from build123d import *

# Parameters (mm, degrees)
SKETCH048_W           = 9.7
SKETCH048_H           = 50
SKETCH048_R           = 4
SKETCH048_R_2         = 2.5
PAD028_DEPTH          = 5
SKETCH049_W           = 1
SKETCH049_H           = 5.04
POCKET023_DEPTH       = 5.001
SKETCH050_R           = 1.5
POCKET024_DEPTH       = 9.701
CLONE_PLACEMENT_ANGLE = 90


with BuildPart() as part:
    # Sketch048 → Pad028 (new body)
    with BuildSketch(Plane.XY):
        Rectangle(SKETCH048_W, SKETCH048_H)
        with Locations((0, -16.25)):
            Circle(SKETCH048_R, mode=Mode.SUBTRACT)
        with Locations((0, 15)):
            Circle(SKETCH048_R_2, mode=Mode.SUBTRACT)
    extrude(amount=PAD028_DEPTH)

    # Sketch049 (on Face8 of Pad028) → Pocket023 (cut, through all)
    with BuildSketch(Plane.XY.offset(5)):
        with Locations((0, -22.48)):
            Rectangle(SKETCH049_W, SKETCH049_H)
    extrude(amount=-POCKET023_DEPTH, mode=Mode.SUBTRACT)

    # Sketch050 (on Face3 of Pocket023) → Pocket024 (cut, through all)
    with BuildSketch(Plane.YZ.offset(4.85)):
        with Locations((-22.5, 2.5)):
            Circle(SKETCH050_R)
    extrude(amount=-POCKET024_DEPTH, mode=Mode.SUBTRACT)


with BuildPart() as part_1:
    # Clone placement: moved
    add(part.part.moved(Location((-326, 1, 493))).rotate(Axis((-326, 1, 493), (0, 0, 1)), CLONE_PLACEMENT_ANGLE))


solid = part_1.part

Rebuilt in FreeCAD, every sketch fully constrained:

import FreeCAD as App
import Part
import Sketcher
Q = App.Units.Quantity

doc = App.newDocument("Part")
body = doc.addObject("PartDesign::Body", "Body")

sketch1 = body.newObject("Sketcher::SketchObject", "Sketch")
sketch1.AttachmentSupport = (doc.getObject("XY_Plane"), [""])
sketch1.MapMode = "FlatFace"
sketch1.addGeometry([
    Part.LineSegment(App.Vector(-4.8, 25, 0), App.Vector(-4.8, -25, 0)),
    Part.LineSegment(App.Vector(-4.8, -25, 0), App.Vector(4.8, -25, 0)),
    Part.LineSegment(App.Vector(4.8, -25, 0), App.Vector(4.8, 25, 0)),
    Part.LineSegment(App.Vector(4.8, 25, 0), App.Vector(-4.8, 25, 0)),
    Part.Circle(App.Vector(0, -16.2, 0), App.Vector(0, 0, 1), 4),
    Part.Circle(App.Vector(0, 15, 0), App.Vector(0, 0, 1), 2.5),
], False)
sketch1.addConstraint([
    Sketcher.Constraint("Coincident", 0, 2, 1, 1),
    Sketcher.Constraint("Coincident", 1, 2, 2, 1),
    Sketcher.Constraint("Coincident", 2, 2, 3, 1),
    Sketcher.Constraint("Coincident", 3, 2, 0, 1),
    Sketcher.Constraint("Vertical", 0),
    Sketcher.Constraint("Horizontal", 1),
    Sketcher.Constraint("Vertical", 2),
    Sketcher.Constraint("Horizontal", 3),
    Sketcher.Constraint("Symmetric", 0, 2, 2, 2, -1, 1),
    Sketcher.Constraint("PointOnObject", 4, 3, -2),
    Sketcher.Constraint("PointOnObject", 5, 3, -2),
    Sketcher.Constraint("Diameter", 4, Q("8 mm")),
    Sketcher.Constraint("Diameter", 5, Q("5 mm")),
    Sketcher.Constraint("DistanceY", 0, 2, 0, 1, Q("50 mm")),
    Sketcher.Constraint("DistanceX", 1, 1, 1, 2, Q("9.7 mm")),
    Sketcher.Constraint("DistanceY", -1, 1, 5, 3, Q("15 mm")),
    Sketcher.Constraint("DistanceY", 4, 3, -1, 1, Q("16.25 mm")),
])
pad1 = body.newObject("PartDesign::Pad", "Pad")
pad1.Profile = sketch1
pad1.Length = 5

sketch2 = body.newObject("Sketcher::SketchObject", "Sketch001")
sketch2.AttachmentSupport = (doc.getObject("XY_Plane"), [""])
sketch2.MapMode = "FlatFace"
sketch2.AttachmentOffset = App.Placement(App.Vector(0, 0, 5), App.Rotation())
sketch2.addGeometry([
    Part.LineSegment(App.Vector(-0.5, -20, 0), App.Vector(-0.5, -25, 0)),
    Part.LineSegment(App.Vector(-0.5, -25, 0), App.Vector(0.5, -25, 0)),
    Part.LineSegment(App.Vector(0.5, -25, 0), App.Vector(0.5, -20, 0)),
    Part.LineSegment(App.Vector(0.5, -20, 0), App.Vector(-0.5, -20, 0)),
], False)
sketch2.addConstraint([
    Sketcher.Constraint("Coincident", 0, 2, 1, 1),
    Sketcher.Constraint("Coincident", 1, 2, 2, 1),
    Sketcher.Constraint("Coincident", 2, 2, 3, 1),
    Sketcher.Constraint("Coincident", 3, 2, 0, 1),
    Sketcher.Constraint("Vertical", 0),
    Sketcher.Constraint("Horizontal", 1),
    Sketcher.Constraint("Vertical", 2),
    Sketcher.Constraint("Horizontal", 3),
    Sketcher.Constraint("DistanceX", 1, 1, 1, 2, Q("1 mm")),
    Sketcher.Constraint("DistanceY", 0, 2, -1, 1, Q("25 mm")),
    Sketcher.Constraint("DistanceY", 0, 2, 0, 1, Q("5.04 mm")),
    Sketcher.Constraint("DistanceX", 0, 2, -1, 1, Q("0.5 mm")),
])
pocket1 = body.newObject("PartDesign::Pocket", "Pocket")
pocket1.Profile = sketch2
pocket1.Type = "ThroughAll"

sketch3 = body.newObject("Sketcher::SketchObject", "Sketch002")
sketch3.AttachmentSupport = (doc.getObject("YZ_Plane"), [""])
sketch3.MapMode = "FlatFace"
sketch3.AttachmentOffset = App.Placement(App.Vector(0, 0, 4.85), App.Rotation())
sketch3.addGeometry(Part.Circle(App.Vector(-22.5, 2.5, 0), App.Vector(0, 0, 1), 1.5), False)
sketch3.addConstraint([
    Sketcher.Constraint("Diameter", 0, Q("3 mm")),
    Sketcher.Constraint("DistanceX", 0, 3, -1, 1, Q("22.5 mm")),
    Sketcher.Constraint("DistanceY", -1, 1, 0, 3, Q("2.5 mm")),
])
pocket2 = body.newObject("PartDesign::Pocket", "Pocket001")
pocket2.Profile = sketch3
pocket2.Type = "ThroughAll"
body2 = doc.addObject("PartDesign::Body", "Body001")
doc.recompute()

body.Placement = App.Placement(App.Vector(-326, 1, 493), App.Rotation(App.Vector(0, 0, 1), 90))
boolean = body2.newObject("PartDesign::Boolean", "Boolean")
boolean.Type = "Fuse"
boolean.addObjects([body])

doc.recompute()
